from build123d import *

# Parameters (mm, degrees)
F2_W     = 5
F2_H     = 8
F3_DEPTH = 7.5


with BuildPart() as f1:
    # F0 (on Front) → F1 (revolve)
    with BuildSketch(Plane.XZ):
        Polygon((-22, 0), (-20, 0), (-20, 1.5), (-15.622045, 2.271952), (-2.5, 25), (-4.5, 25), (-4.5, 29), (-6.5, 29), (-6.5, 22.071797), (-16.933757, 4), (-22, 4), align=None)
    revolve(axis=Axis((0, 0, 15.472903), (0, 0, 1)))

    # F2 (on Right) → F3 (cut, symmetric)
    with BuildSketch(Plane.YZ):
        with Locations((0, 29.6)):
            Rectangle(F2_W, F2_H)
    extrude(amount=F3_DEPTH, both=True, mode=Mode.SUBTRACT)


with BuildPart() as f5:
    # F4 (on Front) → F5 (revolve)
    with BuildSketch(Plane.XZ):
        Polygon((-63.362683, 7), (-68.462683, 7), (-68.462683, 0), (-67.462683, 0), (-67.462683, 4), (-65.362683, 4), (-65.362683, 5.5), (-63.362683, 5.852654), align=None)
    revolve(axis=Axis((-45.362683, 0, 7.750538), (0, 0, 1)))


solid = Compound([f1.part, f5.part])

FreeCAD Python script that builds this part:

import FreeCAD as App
import Part
import Sketcher

V = App.Vector
Q = App.Units.Quantity

doc = App.newDocument("Part")
body = doc.addObject("PartDesign::Body", "Body")

# Sketch on XZ plane
sketch1 = body.newObject("Sketcher::SketchObject", "Sketch")
sketch1.AttachmentSupport = (doc.getObject("XZ_Plane"), [""])
sketch1.MapMode = "FlatFace"
sketch1.addGeometry(Part.LineSegment(V(-22, 0, 0), V(-20, 0, 0)), False)
sketch1.addGeometry(Part.LineSegment(V(-20, 0, 0), V(-20, 1.5, 0)), False)
sketch1.addGeometry(Part.LineSegment(V(-20, 1.5, 0), V(-15.6, 2.3, 0)), False)
sketch1.addGeometry(Part.LineSegment(V(-15.6, 2.3, 0), V(-2.5, 25, 0)), False)
sketch1.addGeometry(Part.LineSegment(V(-2.5, 25, 0), V(-4.5, 25, 0)), False)
sketch1.addGeometry(Part.LineSegment(V(-4.5, 25, 0), V(-4.5, 29, 0)), False)
sketch1.addGeometry(Part.LineSegment(V(-4.5, 29, 0), V(-6.5, 29, 0)), False)
sketch1.addGeometry(Part.LineSegment(V(-6.5, 29, 0), V(-6.5, 22.1, 0)), False)
sketch1.addGeometry(Part.LineSegment(V(-6.5, 22.1, 0), V(-16.9, 4, 0)), False)
sketch1.addGeometry(Part.LineSegment(V(-16.9, 4, 0), V(-22, 4, 0)), False)
sketch1.addGeometry(Part.LineSegment(V(-22, 4, 0), V(-22, 0, 0)), False)
sketch1.addConstraint(Sketcher.Constraint("Coincident", 0, 2, 1, 1))
sketch1.addConstraint(Sketcher.Constraint("Coincident", 1, 2, 2, 1))
sketch1.addConstraint(Sketcher.Constraint("Coincident", 2, 2, 3, 1))
sketch1.addConstraint(Sketcher.Constraint("Coincident", 3, 2, 4, 1))
sketch1.addConstraint(Sketcher.Constraint("Coincident", 4, 2, 5, 1))
sketch1.addConstraint(Sketcher.Constraint("Coincident", 5, 2, 6, 1))
sketch1.addConstraint(Sketcher.Constraint("Coincident", 6, 2, 7, 1))
sketch1.addConstraint(Sketcher.Constraint("Coincident", 7, 2, 8, 1))
sketch1.addConstraint(Sketcher.Constraint("Coincident", 8, 2, 9, 1))
sketch1.addConstraint(Sketcher.Constraint("Coincident", 9, 2, 10, 1))
sketch1.addConstraint(Sketcher.Constraint("Coincident", 10, 2, 0, 1))
sketch1.addConstraint(Sketcher.Constraint("Horizontal", 0))
sketch1.addConstraint(Sketcher.Constraint("Vertical", 1))
sketch1.addConstraint(Sketcher.Constraint("Horizontal", 4))
sketch1.addConstraint(Sketcher.Constraint("Vertical", 5))
sketch1.addConstraint(Sketcher.Constraint("Horizontal", 6))
sketch1.addConstraint(Sketcher.Constraint("Vertical", 7))
sketch1.addConstraint(Sketcher.Constraint("Horizontal", 9))
sketch1.addConstraint(Sketcher.Constraint("Vertical", 10))
sketch1.addConstraint(Sketcher.Constraint("PointOnObject", 0, 2, -1))
sketch1.addConstraint(Sketcher.Constraint("Parallel", 3, 8))
sketch1.addConstraint(Sketcher.Constraint("Equal", 0, 4))
sketch1.addConstraint(Sketcher.Constraint("Equal", 4, 6))
sketch1.addConstraint(Sketcher.Constraint("Equal", 5, 10))
sketch1.addConstraint(Sketcher.Constraint("DistanceX", 0, 1, 0, 2, 2.0))
sketch1.addConstraint(Sketcher.Constraint("DistanceY", 5, 1, 5, 2, 4.0))
sketch1.addConstraint(Sketcher.Constraint("Angle", 2, Q("10.000005 deg")))
sketch1.addConstraint(Sketcher.Constraint("Angle", 3, Q("59.999999 deg")))
sketch1.addConstraint(Sketcher.Constraint("DistanceY", 1, 1, 1, 2, 1.5))
sketch1.addConstraint(Sketcher.Constraint("DistanceX", 0, 2, -1, 1, 20.0))
sketch1.addConstraint(Sketcher.Constraint("DistanceY", -1, 1, 3, 2, 25.0))
sketch1.addConstraint(Sketcher.Constraint("DistanceX", 3, 2, -1, 1, 2.5))
sketch1.addConstraint(Sketcher.Constraint("DistanceX", 9, 2, 9, 1, 5.066243))
revolution = body.newObject("PartDesign::Revolution", "Revolution")
revolution.Profile = sketch1
revolution.ReferenceAxis = (sketch1, ["V_Axis"])
revolution.Angle = 360

# Sketch on YZ plane
sketch2 = body.newObject("Sketcher::SketchObject", "Sketch001")
sketch2.AttachmentSupport = (doc.getObject("YZ_Plane"), [""])
sketch2.MapMode = "FlatFace"
sketch2.addGeometry(Part.LineSegment(V(-2, 34, 0), V(-2, 26, 0)), False)
sketch2.addGeometry(Part.LineSegment(V(-2, 26, 0), V(2, 26, 0)), False)
sketch2.addGeometry(Part.LineSegment(V(2, 26, 0), V(2, 34, 0)), False)
sketch2.addGeometry(Part.LineSegment(V(2, 34, 0), V(-2, 34, 0)), False)
sketch2.addConstraint(Sketcher.Constraint("Coincident", 0, 2, 1, 1))
sketch2.addConstraint(Sketcher.Constraint("Coincident", 1, 2, 2, 1))
sketch2.addConstraint(Sketcher.Constraint("Coincident", 2, 2, 3, 1))
sketch2.addConstraint(Sketcher.Constraint("Coincident", 3, 2, 0, 1))
sketch2.addConstraint(Sketcher.Constraint("Vertical", 0))
sketch2.addConstraint(Sketcher.Constraint("Horizontal", 1))
sketch2.addConstraint(Sketcher.Constraint("Vertical", 2))
sketch2.addConstraint(Sketcher.Constraint("Horizontal", 3))
sketch2.addConstraint(Sketcher.Constraint("DistanceX", 1, 1, 1, 2, 5.0))
sketch2.addConstraint(Sketcher.Constraint("DistanceY", 0, 2, 0, 1, 8.0))
sketch2.addConstraint(Sketcher.Constraint("DistanceX", 0, 2, -1, 1, 2.5))
sketch2.addConstraint(Sketcher.Constraint("DistanceY", -1, 1, 0, 2, 25.6))
pocket1 = body.newObject("PartDesign::Pocket", "Pocket")
pocket1.Profile = sketch2
pocket1.Length = 15
pocket1.Midplane = True
body2 = doc.addObject("PartDesign::Body", "Body001")

# Sketch on XZ plane
sketch3 = body2.newObject("Sketcher::SketchObject", "Sketch002")
sketch3.AttachmentSupport = (doc.getObject("XZ_Plane001"), [""])
sketch3.MapMode = "FlatFace"
sketch3.addGeometry(Part.LineSegment(V(-63.4, 7, 0), V(-68.5, 7, 0)), False)
sketch3.addGeometry(Part.LineSegment(V(-68.5, 7, 0), V(-68.5, 0, 0)), False)
sketch3.addGeometry(Part.LineSegment(V(-68.5, 0, 0), V(-67.5, 0, 0)), False)
sketch3.addGeometry(Part.LineSegment(V(-67.5, 0, 0), V(-67.5, 4, 0)), False)
sketch3.addGeometry(Part.LineSegment(V(-67.5, 4, 0), V(-65.4, 4, 0)), False)
sketch3.addGeometry(Part.LineSegment(V(-65.4, 4, 0), V(-65.4, 5.5, 0)), False)
sketch3.addGeometry(Part.LineSegment(V(-65.4, 5.5, 0), V(-63.4, 5.9, 0)), False)
sketch3.addGeometry(Part.LineSegment(V(-63.4, 5.9, 0), V(-63.4, 7, 0)), False)
sketch3.addGeometry(Part.LineSegment(V(-45.4, 0, 0), V(-45.4, 7, 0)), True)  # axis
sketch3.addConstraint(Sketcher.Constraint("Coincident", 0, 2, 1, 1))
sketch3.addConstraint(Sketcher.Constraint("Coincident", 1, 2, 2, 1))
sketch3.addConstraint(Sketcher.Constraint("Coincident", 2, 2, 3, 1))
sketch3.addConstraint(Sketcher.Constraint("Coincident", 3, 2, 4, 1))
sketch3.addConstraint(Sketcher.Constraint("Coincident", 4, 2, 5, 1))
sketch3.addConstraint(Sketcher.Constraint("Coincident", 5, 2, 6, 1))
sketch3.addConstraint(Sketcher.Constraint("Coincident", 6, 2, 7, 1))
sketch3.addConstraint(Sketcher.Constraint("Coincident", 7, 2, 0, 1))
sketch3.addConstraint(Sketcher.Constraint("Horizontal", 0))
sketch3.addConstraint(Sketcher.Constraint("Vertical", 1))
sketch3.addConstraint(Sketcher.Constraint("Horizontal", 2))
sketch3.addConstraint(Sketcher.Constraint("Vertical", 3))
sketch3.addConstraint(Sketcher.Constraint("Horizontal", 4))
sketch3.addConstraint(Sketcher.Constraint("Vertical", 5))
sketch3.addConstraint(Sketcher.Constraint("Vertical", 7))
sketch3.addConstraint(Sketcher.Constraint("Vertical", 8))
sketch3.addConstraint(Sketcher.Constraint("PointOnObject", 1, 2, -1))
sketch3.addConstraint(Sketcher.Constraint("PointOnObject", 8, 1, -1))
sketch3.addConstraint(Sketcher.Constraint("Horizontal", 7, 2, 8, 2))
sketch3.addConstraint(Sketcher.Constraint("DistanceX", 2, 1, 2, 2, 1.0))
sketch3.addConstraint(Sketcher.Constraint("DistanceY", 1, 2, 1, 1, 7.0))
sketch3.addConstraint(Sketcher.Constraint("DistanceY", 3, 1, 3, 2, 4.0))
sketch3.addConstraint(Sketcher.Constraint("Angle", 6, Q("10.000001 deg")))
sketch3.addConstraint(Sketcher.Constraint("DistanceX", 0, 2, 0, 1, 5.1))
sketch3.addConstraint(Sketcher.Constraint("DistanceX", 4, 1, 4, 2, 2.1))
sketch3.addConstraint(Sketcher.Constraint("DistanceY", 5, 1, 5, 2, 1.5))
sketch3.addConstraint(Sketcher.Constraint("DistanceX", 6, 2, 8, 1, 18.0))
sketch3.addConstraint(Sketcher.Constraint("DistanceX", 0, 2, -1, 1, 68.462683))
revolution2 = body2.newObject("PartDesign::Revolution", "Revolution001")
revolution2.Profile = sketch3
revolution2.ReferenceAxis = (sketch3, ["Axis0"])
revolution2.Angle = 360

doc.recompute()
